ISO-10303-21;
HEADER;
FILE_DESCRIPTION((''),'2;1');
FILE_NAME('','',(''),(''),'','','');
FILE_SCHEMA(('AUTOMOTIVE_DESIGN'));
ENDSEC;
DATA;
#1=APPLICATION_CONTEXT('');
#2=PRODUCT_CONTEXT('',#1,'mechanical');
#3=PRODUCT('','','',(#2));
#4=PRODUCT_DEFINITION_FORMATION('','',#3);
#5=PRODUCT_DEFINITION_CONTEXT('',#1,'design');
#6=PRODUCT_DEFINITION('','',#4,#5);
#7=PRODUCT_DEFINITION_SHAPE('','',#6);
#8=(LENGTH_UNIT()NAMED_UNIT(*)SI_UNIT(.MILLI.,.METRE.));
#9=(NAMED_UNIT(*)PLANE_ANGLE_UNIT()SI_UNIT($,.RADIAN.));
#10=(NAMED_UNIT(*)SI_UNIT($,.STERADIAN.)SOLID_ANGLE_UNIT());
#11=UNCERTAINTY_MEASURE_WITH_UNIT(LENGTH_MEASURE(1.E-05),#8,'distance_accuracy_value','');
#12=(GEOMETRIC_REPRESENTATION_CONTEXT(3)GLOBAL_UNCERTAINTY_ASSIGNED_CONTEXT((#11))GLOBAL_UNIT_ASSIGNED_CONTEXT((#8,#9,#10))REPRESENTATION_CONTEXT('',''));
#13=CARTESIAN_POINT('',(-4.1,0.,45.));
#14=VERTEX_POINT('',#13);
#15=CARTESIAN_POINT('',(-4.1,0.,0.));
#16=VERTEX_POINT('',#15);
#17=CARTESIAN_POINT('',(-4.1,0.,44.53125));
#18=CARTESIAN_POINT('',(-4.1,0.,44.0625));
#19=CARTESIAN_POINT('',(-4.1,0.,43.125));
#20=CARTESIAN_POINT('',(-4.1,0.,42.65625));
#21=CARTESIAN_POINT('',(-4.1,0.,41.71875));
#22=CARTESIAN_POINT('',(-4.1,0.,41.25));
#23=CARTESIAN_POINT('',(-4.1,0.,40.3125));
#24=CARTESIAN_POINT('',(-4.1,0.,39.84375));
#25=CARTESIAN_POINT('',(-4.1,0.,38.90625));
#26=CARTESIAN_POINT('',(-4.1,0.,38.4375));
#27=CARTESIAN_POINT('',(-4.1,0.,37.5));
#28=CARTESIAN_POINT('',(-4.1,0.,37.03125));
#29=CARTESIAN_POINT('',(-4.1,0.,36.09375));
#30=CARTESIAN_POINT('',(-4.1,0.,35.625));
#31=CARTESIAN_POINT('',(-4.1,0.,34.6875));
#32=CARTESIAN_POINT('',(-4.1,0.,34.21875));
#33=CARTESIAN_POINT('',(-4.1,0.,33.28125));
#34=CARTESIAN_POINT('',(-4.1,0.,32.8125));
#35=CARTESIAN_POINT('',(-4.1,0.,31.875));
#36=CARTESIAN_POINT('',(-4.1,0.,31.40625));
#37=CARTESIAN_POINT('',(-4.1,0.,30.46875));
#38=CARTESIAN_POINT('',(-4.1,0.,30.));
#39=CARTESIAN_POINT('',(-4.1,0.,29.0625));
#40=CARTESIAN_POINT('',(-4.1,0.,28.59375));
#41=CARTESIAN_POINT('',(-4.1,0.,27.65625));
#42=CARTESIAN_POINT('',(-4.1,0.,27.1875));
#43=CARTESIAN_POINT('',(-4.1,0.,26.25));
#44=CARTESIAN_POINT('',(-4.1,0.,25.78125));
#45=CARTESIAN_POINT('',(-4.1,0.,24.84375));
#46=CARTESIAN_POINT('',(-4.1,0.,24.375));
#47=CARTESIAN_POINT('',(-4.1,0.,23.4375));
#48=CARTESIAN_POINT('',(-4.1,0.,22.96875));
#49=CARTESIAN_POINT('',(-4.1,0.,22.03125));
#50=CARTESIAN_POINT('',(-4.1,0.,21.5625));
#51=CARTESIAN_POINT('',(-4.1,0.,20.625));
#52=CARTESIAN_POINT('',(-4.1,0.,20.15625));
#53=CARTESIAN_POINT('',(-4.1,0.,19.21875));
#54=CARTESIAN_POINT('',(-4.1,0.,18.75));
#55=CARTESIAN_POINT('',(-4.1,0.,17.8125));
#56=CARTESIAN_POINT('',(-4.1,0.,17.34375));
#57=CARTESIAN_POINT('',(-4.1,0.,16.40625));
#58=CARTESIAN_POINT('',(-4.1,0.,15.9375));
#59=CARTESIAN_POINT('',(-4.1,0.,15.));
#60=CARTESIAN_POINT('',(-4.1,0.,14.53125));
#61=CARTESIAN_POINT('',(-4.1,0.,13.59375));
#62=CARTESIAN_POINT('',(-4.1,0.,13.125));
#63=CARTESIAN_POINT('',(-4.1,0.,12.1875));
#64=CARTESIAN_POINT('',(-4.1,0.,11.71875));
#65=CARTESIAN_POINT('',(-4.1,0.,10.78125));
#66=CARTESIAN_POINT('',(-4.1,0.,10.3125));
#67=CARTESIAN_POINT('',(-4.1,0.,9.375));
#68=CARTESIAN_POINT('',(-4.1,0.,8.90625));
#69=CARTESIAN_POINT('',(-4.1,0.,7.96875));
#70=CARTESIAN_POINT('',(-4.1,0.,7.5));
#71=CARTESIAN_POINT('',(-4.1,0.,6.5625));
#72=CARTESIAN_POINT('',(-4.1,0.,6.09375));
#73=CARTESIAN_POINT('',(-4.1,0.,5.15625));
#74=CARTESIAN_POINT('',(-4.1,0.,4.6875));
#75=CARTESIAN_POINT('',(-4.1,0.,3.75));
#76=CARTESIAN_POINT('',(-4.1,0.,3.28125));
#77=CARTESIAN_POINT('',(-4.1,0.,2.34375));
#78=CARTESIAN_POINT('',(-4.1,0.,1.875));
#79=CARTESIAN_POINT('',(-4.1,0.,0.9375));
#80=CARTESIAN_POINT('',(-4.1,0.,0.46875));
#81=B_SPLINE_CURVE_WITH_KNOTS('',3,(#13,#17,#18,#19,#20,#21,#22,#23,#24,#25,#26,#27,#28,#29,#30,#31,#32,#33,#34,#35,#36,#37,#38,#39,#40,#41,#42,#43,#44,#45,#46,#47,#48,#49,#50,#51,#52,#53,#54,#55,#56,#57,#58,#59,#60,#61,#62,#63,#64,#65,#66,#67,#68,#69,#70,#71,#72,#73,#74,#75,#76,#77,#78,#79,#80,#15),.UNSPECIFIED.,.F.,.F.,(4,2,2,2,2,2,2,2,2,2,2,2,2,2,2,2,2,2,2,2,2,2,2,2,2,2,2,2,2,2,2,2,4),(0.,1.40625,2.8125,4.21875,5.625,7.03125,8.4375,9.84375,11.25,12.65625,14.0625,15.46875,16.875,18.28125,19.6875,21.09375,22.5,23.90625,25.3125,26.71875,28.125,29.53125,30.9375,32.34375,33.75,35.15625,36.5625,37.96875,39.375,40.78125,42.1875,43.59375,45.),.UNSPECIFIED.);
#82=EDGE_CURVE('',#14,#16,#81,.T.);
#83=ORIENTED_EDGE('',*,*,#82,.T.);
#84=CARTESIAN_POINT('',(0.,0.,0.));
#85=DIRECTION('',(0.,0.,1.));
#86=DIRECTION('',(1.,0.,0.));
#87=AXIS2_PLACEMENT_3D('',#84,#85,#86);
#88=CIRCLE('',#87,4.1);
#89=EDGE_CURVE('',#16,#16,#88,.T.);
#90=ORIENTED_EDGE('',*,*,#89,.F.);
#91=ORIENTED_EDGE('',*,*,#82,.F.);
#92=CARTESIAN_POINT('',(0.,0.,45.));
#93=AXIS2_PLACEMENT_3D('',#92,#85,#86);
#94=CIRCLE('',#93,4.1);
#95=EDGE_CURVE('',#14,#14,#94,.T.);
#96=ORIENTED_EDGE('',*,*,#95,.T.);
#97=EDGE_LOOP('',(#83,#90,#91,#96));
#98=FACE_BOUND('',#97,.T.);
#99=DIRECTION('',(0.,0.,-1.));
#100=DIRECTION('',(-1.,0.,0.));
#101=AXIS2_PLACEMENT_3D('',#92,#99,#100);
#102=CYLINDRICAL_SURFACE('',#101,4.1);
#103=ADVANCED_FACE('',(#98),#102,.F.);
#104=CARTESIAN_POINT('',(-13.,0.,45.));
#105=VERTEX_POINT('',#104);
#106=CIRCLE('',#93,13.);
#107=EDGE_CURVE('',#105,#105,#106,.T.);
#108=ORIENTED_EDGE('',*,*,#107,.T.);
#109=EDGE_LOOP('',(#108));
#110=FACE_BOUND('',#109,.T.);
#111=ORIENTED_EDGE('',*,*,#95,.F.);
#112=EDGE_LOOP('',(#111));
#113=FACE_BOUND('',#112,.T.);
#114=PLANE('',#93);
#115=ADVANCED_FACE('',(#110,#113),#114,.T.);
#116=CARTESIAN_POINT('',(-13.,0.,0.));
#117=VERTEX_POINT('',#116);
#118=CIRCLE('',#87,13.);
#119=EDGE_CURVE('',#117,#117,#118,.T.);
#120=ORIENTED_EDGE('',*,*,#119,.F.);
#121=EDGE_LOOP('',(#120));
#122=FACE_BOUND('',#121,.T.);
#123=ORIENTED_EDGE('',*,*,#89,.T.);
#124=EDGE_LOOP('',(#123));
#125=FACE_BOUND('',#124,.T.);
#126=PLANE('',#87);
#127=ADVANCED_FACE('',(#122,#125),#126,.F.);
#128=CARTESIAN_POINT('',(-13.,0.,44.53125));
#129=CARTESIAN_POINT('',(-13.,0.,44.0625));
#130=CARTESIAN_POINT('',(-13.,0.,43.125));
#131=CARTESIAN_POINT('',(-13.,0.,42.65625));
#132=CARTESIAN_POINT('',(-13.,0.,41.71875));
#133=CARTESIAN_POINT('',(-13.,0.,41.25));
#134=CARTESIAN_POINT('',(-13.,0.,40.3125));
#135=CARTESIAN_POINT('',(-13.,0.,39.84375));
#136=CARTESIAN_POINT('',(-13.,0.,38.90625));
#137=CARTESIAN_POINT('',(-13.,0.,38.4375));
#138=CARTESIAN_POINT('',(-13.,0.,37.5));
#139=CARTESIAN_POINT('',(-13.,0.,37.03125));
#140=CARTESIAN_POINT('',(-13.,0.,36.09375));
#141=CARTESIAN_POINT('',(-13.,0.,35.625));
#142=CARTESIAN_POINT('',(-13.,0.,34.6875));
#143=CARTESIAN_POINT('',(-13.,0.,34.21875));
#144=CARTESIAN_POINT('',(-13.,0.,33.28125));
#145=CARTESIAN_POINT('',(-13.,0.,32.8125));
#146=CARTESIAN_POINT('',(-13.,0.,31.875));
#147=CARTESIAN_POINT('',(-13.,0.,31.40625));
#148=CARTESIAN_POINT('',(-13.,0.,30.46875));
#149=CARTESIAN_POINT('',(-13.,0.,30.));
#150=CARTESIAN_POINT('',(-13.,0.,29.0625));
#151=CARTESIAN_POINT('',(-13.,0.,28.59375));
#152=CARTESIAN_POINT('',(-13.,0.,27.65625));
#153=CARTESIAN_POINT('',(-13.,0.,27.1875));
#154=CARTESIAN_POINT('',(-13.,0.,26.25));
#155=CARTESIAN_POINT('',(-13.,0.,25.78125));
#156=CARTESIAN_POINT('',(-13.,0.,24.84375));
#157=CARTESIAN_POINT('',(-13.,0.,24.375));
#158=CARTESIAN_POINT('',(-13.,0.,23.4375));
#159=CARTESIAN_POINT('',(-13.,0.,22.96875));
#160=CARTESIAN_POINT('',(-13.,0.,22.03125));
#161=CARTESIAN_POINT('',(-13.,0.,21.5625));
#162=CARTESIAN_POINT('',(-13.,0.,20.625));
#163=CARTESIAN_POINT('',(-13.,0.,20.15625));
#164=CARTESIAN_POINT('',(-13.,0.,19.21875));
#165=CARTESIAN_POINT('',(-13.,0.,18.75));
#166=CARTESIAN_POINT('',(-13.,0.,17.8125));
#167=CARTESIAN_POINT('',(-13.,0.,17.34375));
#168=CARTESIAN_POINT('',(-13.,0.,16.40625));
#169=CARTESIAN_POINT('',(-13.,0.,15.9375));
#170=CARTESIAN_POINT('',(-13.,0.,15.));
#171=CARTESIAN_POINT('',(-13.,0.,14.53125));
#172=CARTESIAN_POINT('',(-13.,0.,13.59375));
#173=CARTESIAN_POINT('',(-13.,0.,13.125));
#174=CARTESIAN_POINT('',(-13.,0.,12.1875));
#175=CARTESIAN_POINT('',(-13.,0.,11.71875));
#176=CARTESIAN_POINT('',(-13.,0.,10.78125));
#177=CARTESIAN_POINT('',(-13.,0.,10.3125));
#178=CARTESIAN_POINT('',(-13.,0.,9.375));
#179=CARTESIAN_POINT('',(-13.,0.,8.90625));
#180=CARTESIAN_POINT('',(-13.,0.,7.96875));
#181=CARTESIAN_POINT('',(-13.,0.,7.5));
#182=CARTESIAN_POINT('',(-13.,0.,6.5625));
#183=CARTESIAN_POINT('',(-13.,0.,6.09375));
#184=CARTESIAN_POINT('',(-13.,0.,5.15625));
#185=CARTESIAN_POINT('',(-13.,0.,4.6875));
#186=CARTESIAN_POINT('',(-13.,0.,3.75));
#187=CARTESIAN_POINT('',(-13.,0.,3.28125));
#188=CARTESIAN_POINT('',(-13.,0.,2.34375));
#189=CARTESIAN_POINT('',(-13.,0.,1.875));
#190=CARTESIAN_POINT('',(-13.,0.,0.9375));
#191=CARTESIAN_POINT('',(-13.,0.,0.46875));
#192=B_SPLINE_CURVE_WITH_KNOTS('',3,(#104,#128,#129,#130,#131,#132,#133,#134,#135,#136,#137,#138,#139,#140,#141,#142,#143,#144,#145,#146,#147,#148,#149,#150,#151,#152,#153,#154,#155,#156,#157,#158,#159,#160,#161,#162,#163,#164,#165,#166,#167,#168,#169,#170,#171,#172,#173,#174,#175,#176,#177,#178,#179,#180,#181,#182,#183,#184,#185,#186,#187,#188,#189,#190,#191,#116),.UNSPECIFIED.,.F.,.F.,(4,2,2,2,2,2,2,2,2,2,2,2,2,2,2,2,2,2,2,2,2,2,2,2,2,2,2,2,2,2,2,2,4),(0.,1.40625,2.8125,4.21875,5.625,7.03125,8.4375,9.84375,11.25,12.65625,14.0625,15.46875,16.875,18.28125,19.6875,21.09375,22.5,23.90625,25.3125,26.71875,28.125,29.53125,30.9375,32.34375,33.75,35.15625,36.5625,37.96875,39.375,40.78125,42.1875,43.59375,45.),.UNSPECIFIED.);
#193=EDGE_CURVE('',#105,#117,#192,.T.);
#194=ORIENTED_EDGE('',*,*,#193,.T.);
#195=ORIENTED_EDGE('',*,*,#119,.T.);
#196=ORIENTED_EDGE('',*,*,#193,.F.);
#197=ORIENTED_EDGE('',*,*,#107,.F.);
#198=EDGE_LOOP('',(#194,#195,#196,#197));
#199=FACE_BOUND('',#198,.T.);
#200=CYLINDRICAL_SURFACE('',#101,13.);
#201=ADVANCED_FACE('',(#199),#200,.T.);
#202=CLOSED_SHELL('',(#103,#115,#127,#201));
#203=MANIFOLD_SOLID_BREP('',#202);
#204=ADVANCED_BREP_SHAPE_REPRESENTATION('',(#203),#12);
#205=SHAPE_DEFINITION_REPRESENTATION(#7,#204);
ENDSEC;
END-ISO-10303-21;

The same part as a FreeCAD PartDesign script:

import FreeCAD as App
import Part
import Sketcher

doc = App.newDocument("Part")
body = doc.addObject("PartDesign::Body", "Body")

# Sketch on XY plane
sketch1 = doc.addObject("Sketcher::SketchObject", "Sketch")
body.addObject(sketch1)
sketch1.AttachmentSupport = (doc.XY_Plane, [""])
sketch1.MapMode = "FlatFace"
sketch1.addGeometry([
    Part.Circle(App.Vector(0, 0, 0), App.Vector(0, 0, 1), 13),
    Part.Circle(App.Vector(0, 0, 0), App.Vector(0, 0, 1), 4.1),
], False)
sketch1.addConstraint([
    Sketcher.Constraint("Coincident", 0, 3, -1, 1),
    Sketcher.Constraint("Coincident", 1, 3, -1, 1),
    Sketcher.Constraint("Diameter", 0, 26.0),
    Sketcher.Constraint("Diameter", 1, 8.2),
])
pad1 = doc.addObject("PartDesign::Pad", "Pad")
body.addObject(pad1)
pad1.Profile = sketch1
pad1.Length = 45

doc.recompute()
